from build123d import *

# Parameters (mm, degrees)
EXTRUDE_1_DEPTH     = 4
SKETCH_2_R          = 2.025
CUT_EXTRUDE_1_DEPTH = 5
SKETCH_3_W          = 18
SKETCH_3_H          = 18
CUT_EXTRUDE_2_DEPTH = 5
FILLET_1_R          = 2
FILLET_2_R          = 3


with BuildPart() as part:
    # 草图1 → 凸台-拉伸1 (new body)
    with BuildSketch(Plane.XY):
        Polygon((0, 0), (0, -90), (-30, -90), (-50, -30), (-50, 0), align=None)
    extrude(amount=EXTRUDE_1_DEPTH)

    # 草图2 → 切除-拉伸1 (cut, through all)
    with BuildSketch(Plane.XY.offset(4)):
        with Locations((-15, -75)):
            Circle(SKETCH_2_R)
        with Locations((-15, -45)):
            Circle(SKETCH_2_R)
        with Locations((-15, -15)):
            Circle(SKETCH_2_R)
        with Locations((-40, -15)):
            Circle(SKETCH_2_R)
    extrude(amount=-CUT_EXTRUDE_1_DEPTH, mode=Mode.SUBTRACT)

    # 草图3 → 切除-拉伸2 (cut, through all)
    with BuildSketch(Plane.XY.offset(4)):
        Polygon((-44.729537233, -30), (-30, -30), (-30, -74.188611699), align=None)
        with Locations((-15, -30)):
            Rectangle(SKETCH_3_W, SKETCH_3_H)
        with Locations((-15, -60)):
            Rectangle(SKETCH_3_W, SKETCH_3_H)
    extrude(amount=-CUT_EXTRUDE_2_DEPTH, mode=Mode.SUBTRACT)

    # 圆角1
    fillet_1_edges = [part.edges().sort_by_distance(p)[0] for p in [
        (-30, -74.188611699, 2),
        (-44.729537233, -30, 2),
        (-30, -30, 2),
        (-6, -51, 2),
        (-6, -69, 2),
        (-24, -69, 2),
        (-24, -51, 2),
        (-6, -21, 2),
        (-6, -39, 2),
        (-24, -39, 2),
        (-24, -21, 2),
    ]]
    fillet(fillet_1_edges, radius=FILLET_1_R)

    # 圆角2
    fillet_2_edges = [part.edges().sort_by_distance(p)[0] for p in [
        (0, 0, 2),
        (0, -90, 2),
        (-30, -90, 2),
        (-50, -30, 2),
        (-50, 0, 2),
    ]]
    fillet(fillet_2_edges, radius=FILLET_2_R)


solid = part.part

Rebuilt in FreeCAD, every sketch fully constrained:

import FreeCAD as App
import Part
import Sketcher
Q = App.Units.Quantity


def edges_at(feature, points):
    """Names of the edges that pass closest to the given points."""
    edges = feature.Shape.Edges
    near = lambda p: min(range(len(edges)), key=lambda i: edges[i].distToShape(Part.Vertex(*p))[0])
    return sorted({f"Edge{near(p) + 1}" for p in points})


def add_polygon(sketch, points):
    """Adds a closed chain of lines whose ends are joined by coincident constraints."""
    first, n = sketch.GeometryCount, len(points)
    for a, b in zip(points, points[1:] + points[:1]):
        sketch.addGeometry(Part.LineSegment(App.Vector(*a, 0), App.Vector(*b, 0)), False)
    for i in range(n):
        sketch.addConstraint(Sketcher.Constraint("Coincident", first + i, 2, first + (i + 1) % n, 1))

doc = App.newDocument("Part")
body = doc.addObject("PartDesign::Body", "Body")

# Sketch on XY plane
sketch1 = doc.addObject("Sketcher::SketchObject", "Sketch")
body.addObject(sketch1)
sketch1.AttachmentSupport = (doc.XY_Plane, [""])
sketch1.MapMode = "FlatFace"
add_polygon(sketch1, [(0, -90), (0, 0), (-50, 0), (-50, -30), (-30, -90)])  # lines 0-4
sketch1.addConstraint([
    Sketcher.Constraint("Vertical", 0),
    Sketcher.Constraint("Horizontal", 1),
    Sketcher.Constraint("Vertical", 2),
    Sketcher.Constraint("Horizontal", 4),
    Sketcher.Constraint("Coincident", 0, 2, -1, 1),
    Sketcher.Constraint("Equal", 4, 2),
    Sketcher.Constraint("DistanceX", 1, 2, 1, 1, Q("50 mm")),
    Sketcher.Constraint("DistanceX", 4, 1, 4, 2, Q("30 mm")),
    Sketcher.Constraint("DistanceY", 0, 1, 0, 2, Q("90 mm")),
])
pad1 = doc.addObject("PartDesign::Pad", "Pad")
body.addObject(pad1)
pad1.Profile = sketch1
pad1.Length = 4

# Sketch on XY plane
sketch2 = doc.addObject("Sketcher::SketchObject", "Sketch001")
body.addObject(sketch2)
sketch2.AttachmentSupport = (doc.XY_Plane, [""])
sketch2.MapMode = "FlatFace"
sketch2.AttachmentOffset = App.Placement(App.Vector(0, 0, 4), App.Rotation())
sketch2.addGeometry([
    Part.Circle(App.Vector(-15, -75, 0), App.Vector(0, 0, 1), 2.025),
    Part.Circle(App.Vector(-15, -45, 0), App.Vector(0, 0, 1), 2.025),
    Part.Circle(App.Vector(-15, -15, 0), App.Vector(0, 0, 1), 2.025),
    Part.Circle(App.Vector(-40, -15, 0), App.Vector(0, 0, 1), 2.025),
], False)
sketch2.addConstraint([
    Sketcher.Constraint("Equal", 0, 1),
    Sketcher.Constraint("Equal", 1, 2),
    Sketcher.Constraint("Equal", 2, 3),
    Sketcher.Constraint("Horizontal", 2, 3, 3, 3),
    Sketcher.Constraint("Vertical", 0, 3, 1, 3),
    Sketcher.Constraint("Vertical", 1, 3, 2, 3),
    Sketcher.Constraint("Diameter", 0, Q("4.05 mm")),
    Sketcher.Constraint("DistanceX", 0, 3, -1, 1, Q("15 mm")),
    Sketcher.Constraint("DistanceY", 0, 3, -1, 1, Q("75 mm")),
    Sketcher.Constraint("DistanceY", 1, 3, -1, 1, Q("45 mm")),
    Sketcher.Constraint("DistanceY", 2, 3, -1, 1, Q("15 mm")),
    Sketcher.Constraint("DistanceX", 3, 3, -1, 1, Q("40 mm")),
])
pocket1 = doc.addObject("PartDesign::Pocket", "Pocket")
body.addObject(pocket1)
pocket1.Profile = sketch2
pocket1.Type = "ThroughAll"

# Sketch on XY plane
sketch3 = doc.addObject("Sketcher::SketchObject", "Sketch002")
body.addObject(sketch3)
sketch3.AttachmentSupport = (doc.XY_Plane, [""])
sketch3.MapMode = "FlatFace"
sketch3.AttachmentOffset = App.Placement(App.Vector(0, 0, 4), App.Rotation())
add_polygon(sketch3, [(-30, -30), (-44.729537, -30), (-30, -74.188612)])  # lines 0-2
add_polygon(sketch3, [(-24, -21), (-24, -39), (-6, -39), (-6, -21)])  # lines 3-6
add_polygon(sketch3, [(-24, -51), (-24, -69), (-6, -69), (-6, -51)])  # lines 7-10
sketch3.addConstraint([
    Sketcher.Constraint("Horizontal", 0),
    Sketcher.Constraint("Vertical", 2),
    Sketcher.Constraint("Vertical", 3),
    Sketcher.Constraint("Horizontal", 4),
    Sketcher.Constraint("Vertical", 5),
    Sketcher.Constraint("Horizontal", 6),
    Sketcher.Constraint("Vertical", 7),
    Sketcher.Constraint("Horizontal", 8),
    Sketcher.Constraint("Vertical", 9),
    Sketcher.Constraint("Horizontal", 10),
    Sketcher.Constraint("Vertical", 6, 2, 7, 2),
    Sketcher.Constraint("Vertical", 5, 2, 8, 2),
    Sketcher.Constraint("Equal", 10, 3),
    Sketcher.Constraint("Equal", 5, 7),
    Sketcher.Constraint("DistanceX", 4, 1, 4, 2, Q("18 mm")),
    Sketcher.Constraint("DistanceY", 0, 2, -1, 1, Q("30 mm")),
    Sketcher.Constraint("DistanceX", 1, 2, -1, 1, Q("30 mm")),
    Sketcher.Constraint("DistanceX", 3, 2, -1, 1, Q("24 mm")),
    Sketcher.Constraint("DistanceY", 3, 2, -1, 1, Q("39 mm")),
    Sketcher.Constraint("DistanceY", 7, 2, -1, 1, Q("69 mm")),
    Sketcher.Constraint("DistanceY", 2, 1, 2, 2, Q("44.188612 mm")),
    Sketcher.Constraint("DistanceX", 0, 2, 0, 1, Q("14.729537 mm")),
])
pocket2 = doc.addObject("PartDesign::Pocket", "Pocket001")
body.addObject(pocket2)
pocket2.Profile = sketch3
pocket2.Type = "ThroughAll"
doc.recompute()

fillet = doc.addObject("PartDesign::Fillet", "Fillet")
body.addObject(fillet)
fillet.Base = (pocket2, edges_at(pocket2, [
    (-30, -74.189, 2),
    (-44.73, -30, 2),
    (-30, -30, 2),
    (-6, -51, 2),
    (-6, -69, 2),
    (-24, -69, 2),
    (-24, -51, 2),
    (-6, -21, 2),
    (-6, -39, 2),
    (-24, -39, 2),
    (-24, -21, 2),
]))
fillet.Radius = 2
doc.recompute()

fillet2 = doc.addObject("PartDesign::Fillet", "Fillet001")
body.addObject(fillet2)
fillet2.Base = (fillet, edges_at(fillet, [
    (0, 0, 2),
    (0, -90, 2),
    (-30, -90, 2),
    (-50, -30, 2),
    (-50, 0, 2),
]))
fillet2.Radius = 3

doc.recompute()
